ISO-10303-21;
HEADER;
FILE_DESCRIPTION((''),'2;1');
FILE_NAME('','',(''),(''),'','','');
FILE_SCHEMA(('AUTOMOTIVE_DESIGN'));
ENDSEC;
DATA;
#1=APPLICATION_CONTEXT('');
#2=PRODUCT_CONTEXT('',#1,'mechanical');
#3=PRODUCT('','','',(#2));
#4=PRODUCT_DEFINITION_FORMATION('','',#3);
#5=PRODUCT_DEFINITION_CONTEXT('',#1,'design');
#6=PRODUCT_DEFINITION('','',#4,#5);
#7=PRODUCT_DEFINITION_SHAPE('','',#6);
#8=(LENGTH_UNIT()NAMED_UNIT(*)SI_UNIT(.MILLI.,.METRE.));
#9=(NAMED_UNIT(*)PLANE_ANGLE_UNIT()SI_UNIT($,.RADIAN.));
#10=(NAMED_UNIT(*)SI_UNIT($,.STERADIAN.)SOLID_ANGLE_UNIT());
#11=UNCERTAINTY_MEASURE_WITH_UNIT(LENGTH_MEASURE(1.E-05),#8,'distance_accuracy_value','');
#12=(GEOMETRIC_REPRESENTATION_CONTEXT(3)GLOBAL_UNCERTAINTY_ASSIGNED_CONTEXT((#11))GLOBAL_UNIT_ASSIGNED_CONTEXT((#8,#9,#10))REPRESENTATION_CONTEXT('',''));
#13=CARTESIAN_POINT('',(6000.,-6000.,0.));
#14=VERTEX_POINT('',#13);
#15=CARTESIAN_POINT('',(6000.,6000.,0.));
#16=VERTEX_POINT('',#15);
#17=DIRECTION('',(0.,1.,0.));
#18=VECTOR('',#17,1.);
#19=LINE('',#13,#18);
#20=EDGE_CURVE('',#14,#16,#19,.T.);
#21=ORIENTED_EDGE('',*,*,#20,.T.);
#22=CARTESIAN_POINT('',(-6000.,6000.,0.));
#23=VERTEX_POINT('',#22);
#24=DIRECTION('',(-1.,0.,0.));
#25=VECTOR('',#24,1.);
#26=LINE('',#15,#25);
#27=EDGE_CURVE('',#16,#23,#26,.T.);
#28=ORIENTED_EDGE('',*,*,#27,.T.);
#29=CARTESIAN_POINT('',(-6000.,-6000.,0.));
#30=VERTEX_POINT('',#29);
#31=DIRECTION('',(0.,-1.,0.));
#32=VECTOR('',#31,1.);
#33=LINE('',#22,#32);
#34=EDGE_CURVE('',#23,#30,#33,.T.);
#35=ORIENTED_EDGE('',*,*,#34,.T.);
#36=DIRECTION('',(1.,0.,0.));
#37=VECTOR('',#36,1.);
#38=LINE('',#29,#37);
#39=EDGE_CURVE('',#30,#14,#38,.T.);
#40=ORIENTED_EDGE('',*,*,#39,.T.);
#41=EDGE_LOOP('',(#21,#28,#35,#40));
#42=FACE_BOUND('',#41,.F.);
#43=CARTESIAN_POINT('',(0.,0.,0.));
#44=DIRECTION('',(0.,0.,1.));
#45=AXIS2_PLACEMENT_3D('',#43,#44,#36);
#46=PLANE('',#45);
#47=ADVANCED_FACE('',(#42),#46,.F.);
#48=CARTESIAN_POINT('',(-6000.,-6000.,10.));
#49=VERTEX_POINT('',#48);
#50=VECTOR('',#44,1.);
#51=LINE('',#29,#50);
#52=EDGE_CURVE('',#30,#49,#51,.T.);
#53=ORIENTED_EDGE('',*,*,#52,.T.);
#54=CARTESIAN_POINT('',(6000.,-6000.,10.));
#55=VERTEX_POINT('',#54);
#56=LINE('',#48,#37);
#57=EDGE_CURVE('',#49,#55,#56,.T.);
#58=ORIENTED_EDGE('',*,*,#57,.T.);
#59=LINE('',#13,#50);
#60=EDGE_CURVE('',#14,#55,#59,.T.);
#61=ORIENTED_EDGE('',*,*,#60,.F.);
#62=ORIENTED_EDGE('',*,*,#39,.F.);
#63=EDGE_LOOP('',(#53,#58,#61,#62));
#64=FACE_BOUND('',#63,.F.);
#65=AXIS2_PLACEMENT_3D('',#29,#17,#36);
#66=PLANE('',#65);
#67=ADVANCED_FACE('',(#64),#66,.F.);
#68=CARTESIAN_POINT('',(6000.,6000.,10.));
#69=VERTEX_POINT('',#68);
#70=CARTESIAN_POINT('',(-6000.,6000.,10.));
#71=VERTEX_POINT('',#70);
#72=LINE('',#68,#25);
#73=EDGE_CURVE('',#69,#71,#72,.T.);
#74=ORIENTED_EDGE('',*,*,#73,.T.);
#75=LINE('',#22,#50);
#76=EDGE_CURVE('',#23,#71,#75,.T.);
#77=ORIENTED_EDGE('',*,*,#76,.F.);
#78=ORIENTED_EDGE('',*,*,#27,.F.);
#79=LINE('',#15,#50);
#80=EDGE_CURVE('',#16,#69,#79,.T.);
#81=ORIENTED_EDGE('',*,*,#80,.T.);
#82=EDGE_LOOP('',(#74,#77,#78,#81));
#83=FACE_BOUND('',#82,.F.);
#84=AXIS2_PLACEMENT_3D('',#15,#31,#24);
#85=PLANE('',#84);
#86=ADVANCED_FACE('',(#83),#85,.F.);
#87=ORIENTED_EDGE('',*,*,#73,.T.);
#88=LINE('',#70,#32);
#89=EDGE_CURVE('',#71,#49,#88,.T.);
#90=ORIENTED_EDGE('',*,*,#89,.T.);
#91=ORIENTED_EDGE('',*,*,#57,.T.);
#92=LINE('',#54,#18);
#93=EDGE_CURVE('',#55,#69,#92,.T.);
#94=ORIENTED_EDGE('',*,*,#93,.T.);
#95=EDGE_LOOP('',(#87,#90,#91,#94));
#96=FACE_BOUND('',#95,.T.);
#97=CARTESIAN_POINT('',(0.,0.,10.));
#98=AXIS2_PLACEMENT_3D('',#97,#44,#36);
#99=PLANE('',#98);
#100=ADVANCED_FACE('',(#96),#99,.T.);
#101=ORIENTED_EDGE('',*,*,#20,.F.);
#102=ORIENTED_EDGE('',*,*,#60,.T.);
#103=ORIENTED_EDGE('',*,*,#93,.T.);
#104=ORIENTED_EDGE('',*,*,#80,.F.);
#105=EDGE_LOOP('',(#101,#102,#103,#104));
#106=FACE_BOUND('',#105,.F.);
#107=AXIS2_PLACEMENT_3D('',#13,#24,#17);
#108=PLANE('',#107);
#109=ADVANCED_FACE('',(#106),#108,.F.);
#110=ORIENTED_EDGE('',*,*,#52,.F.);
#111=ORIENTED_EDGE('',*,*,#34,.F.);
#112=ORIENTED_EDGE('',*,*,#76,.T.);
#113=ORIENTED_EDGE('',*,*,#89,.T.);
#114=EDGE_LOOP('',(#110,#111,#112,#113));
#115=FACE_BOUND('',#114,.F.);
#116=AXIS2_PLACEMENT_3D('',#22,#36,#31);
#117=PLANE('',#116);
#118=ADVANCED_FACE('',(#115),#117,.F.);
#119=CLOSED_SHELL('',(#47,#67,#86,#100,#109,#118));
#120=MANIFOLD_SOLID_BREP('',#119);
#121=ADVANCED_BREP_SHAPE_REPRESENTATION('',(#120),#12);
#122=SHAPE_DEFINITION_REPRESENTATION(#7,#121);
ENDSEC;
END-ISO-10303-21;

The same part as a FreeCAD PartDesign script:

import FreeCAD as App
import Part
import Sketcher

V = App.Vector


def add_polygon(sketch, points):
    """Adds a closed chain of lines whose ends are joined by coincident constraints."""
    first, n = sketch.GeometryCount, len(points)
    for a, b in zip(points, points[1:] + points[:1]):
        sketch.addGeometry(Part.LineSegment(App.Vector(*a, 0), App.Vector(*b, 0)), False)
    for i in range(n):
        sketch.addConstraint(Sketcher.Constraint("Coincident", first + i, 2, first + (i + 1) % n, 1))

doc = App.newDocument("Part")
body = doc.addObject("PartDesign::Body", "Body")

sketch1 = body.newObject("Sketcher::SketchObject", "Sketch")
sketch1.AttachmentSupport = (doc.getObject("XY_Plane"), [""])
sketch1.MapMode = "FlatFace"
add_polygon(sketch1, [(-6000, 6000), (-6000, -6000), (6000, -6000), (6000, 6000)])
sketch1.addConstraint([
    Sketcher.Constraint("Vertical", 0),
    Sketcher.Constraint("Horizontal", 1),
    Sketcher.Constraint("Vertical", 2),
    Sketcher.Constraint("Horizontal", 3),
    Sketcher.Constraint("Symmetric", 0, 2, 2, 2, -1, 1),
    Sketcher.Constraint("Equal", 3, 0),
    Sketcher.Constraint("DistanceX", 1, 1, 1, 2, 12000.0),
])
pad1 = body.newObject("PartDesign::Pad", "Pad")
pad1.Profile = sketch1
pad1.Length = 10

doc.recompute()
